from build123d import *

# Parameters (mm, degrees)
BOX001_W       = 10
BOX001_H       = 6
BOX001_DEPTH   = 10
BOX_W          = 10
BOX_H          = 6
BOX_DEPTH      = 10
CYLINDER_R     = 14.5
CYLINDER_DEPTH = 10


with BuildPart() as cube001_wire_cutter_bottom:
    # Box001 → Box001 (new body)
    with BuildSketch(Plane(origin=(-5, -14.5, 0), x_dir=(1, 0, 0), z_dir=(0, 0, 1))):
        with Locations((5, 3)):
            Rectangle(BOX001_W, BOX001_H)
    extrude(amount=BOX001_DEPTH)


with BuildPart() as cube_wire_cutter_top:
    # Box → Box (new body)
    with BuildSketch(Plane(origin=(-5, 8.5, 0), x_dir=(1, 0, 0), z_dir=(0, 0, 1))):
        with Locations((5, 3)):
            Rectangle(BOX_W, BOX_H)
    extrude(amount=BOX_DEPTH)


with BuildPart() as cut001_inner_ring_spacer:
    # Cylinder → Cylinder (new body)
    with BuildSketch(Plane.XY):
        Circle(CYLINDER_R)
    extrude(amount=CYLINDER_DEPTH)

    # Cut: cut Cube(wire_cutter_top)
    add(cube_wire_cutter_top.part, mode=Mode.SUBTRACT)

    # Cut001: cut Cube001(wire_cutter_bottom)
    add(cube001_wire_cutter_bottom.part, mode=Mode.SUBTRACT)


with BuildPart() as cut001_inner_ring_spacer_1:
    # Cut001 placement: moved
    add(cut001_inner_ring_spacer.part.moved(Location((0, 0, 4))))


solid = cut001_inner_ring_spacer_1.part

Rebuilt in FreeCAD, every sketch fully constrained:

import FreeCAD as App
import Part
import Sketcher
from FreeCAD import Vector
Q = App.Units.Quantity


def add_polygon(sketch, points):
    """Adds a closed chain of lines whose ends are joined by coincident constraints."""
    first, n = sketch.GeometryCount, len(points)
    for a, b in zip(points, points[1:] + points[:1]):
        sketch.addGeometry(Part.LineSegment(App.Vector(*a, 0), App.Vector(*b, 0)), False)
    for i in range(n):
        sketch.addConstraint(Sketcher.Constraint("Coincident", first + i, 2, first + (i + 1) % n, 1))

doc = App.newDocument("Part")
body = doc.addObject("PartDesign::Body", "Body")

sketch1 = body.newObject("Sketcher::SketchObject", "Sketch")
sketch1.AttachmentSupport = (doc.getObject("XY_Plane"), [""])
sketch1.MapMode = "FlatFace"
add_polygon(sketch1, [(-5, -8.5), (-5, -14.5), (5, -14.5), (5, -8.5)])
sketch1.addConstraint([
    Sketcher.Constraint("Vertical", 0),
    Sketcher.Constraint("Horizontal", 1),
    Sketcher.Constraint("Vertical", 2),
    Sketcher.Constraint("Horizontal", 3),
    Sketcher.Constraint("DistanceX", 1, 1, 1, 2, Q("10 mm")),
    Sketcher.Constraint("DistanceY", 0, 2, 0, 1, Q("6 mm")),
    Sketcher.Constraint("DistanceX", 0, 2, -1, 1, Q("5 mm")),
    Sketcher.Constraint("DistanceY", 0, 2, -1, 1, Q("14.5 mm")),
])
pad1 = body.newObject("PartDesign::Pad", "Pad")
pad1.Profile = sketch1
pad1.Length = 10
body2 = doc.addObject("PartDesign::Body", "Body001")

sketch2 = body2.newObject("Sketcher::SketchObject", "Sketch001")
sketch2.AttachmentSupport = (doc.getObject("XY_Plane001"), [""])
sketch2.MapMode = "FlatFace"
add_polygon(sketch2, [(-5, 14.5), (-5, 8.5), (5, 8.5), (5, 14.5)])
sketch2.addConstraint([
    Sketcher.Constraint("Vertical", 0),
    Sketcher.Constraint("Horizontal", 1),
    Sketcher.Constraint("Vertical", 2),
    Sketcher.Constraint("Horizontal", 3),
    Sketcher.Constraint("DistanceX", 1, 1, 1, 2, Q("10 mm")),
    Sketcher.Constraint("DistanceY", 0, 2, 0, 1, Q("6 mm")),
    Sketcher.Constraint("DistanceX", 0, 2, -1, 1, Q("5 mm")),
    Sketcher.Constraint("DistanceY", -1, 1, 0, 2, Q("8.5 mm")),
])
pad2 = body2.newObject("PartDesign::Pad", "Pad001")
pad2.Profile = sketch2
pad2.Length = 10
body3 = doc.addObject("PartDesign::Body", "Body002")

sketch3 = body3.newObject("Sketcher::SketchObject", "Sketch002")
sketch3.AttachmentSupport = (doc.getObject("XY_Plane002"), [""])
sketch3.MapMode = "FlatFace"
sketch3.addGeometry(Part.Circle(Vector(0, 0, 0), Vector(0, 0, 1), 14.5), False)
sketch3.addConstraint([
    Sketcher.Constraint("Coincident", 0, 3, -1, 1),
    Sketcher.Constraint("Diameter", 0, Q("29 mm")),
])
pad3 = body3.newObject("PartDesign::Pad", "Pad002")
pad3.Profile = sketch3
pad3.Length = 10
doc.recompute()

boolean = body3.newObject("PartDesign::Boolean", "Boolean")
boolean.Type = "Cut"
boolean.addObjects([body2])
doc.recompute()

boolean2 = body3.newObject("PartDesign::Boolean", "Boolean001")
boolean2.Type = "Cut"
boolean2.addObjects([body])
body4 = doc.addObject("PartDesign::Body", "Body003")
doc.recompute()

body3.Placement = App.Placement(Vector(0, 0, 4), App.Rotation(Vector(0, 0, 1), 0))
boolean3 = body4.newObject("PartDesign::Boolean", "Boolean002")
boolean3.Type = "Fuse"
boolean3.addObjects([body3])

doc.recompute()
